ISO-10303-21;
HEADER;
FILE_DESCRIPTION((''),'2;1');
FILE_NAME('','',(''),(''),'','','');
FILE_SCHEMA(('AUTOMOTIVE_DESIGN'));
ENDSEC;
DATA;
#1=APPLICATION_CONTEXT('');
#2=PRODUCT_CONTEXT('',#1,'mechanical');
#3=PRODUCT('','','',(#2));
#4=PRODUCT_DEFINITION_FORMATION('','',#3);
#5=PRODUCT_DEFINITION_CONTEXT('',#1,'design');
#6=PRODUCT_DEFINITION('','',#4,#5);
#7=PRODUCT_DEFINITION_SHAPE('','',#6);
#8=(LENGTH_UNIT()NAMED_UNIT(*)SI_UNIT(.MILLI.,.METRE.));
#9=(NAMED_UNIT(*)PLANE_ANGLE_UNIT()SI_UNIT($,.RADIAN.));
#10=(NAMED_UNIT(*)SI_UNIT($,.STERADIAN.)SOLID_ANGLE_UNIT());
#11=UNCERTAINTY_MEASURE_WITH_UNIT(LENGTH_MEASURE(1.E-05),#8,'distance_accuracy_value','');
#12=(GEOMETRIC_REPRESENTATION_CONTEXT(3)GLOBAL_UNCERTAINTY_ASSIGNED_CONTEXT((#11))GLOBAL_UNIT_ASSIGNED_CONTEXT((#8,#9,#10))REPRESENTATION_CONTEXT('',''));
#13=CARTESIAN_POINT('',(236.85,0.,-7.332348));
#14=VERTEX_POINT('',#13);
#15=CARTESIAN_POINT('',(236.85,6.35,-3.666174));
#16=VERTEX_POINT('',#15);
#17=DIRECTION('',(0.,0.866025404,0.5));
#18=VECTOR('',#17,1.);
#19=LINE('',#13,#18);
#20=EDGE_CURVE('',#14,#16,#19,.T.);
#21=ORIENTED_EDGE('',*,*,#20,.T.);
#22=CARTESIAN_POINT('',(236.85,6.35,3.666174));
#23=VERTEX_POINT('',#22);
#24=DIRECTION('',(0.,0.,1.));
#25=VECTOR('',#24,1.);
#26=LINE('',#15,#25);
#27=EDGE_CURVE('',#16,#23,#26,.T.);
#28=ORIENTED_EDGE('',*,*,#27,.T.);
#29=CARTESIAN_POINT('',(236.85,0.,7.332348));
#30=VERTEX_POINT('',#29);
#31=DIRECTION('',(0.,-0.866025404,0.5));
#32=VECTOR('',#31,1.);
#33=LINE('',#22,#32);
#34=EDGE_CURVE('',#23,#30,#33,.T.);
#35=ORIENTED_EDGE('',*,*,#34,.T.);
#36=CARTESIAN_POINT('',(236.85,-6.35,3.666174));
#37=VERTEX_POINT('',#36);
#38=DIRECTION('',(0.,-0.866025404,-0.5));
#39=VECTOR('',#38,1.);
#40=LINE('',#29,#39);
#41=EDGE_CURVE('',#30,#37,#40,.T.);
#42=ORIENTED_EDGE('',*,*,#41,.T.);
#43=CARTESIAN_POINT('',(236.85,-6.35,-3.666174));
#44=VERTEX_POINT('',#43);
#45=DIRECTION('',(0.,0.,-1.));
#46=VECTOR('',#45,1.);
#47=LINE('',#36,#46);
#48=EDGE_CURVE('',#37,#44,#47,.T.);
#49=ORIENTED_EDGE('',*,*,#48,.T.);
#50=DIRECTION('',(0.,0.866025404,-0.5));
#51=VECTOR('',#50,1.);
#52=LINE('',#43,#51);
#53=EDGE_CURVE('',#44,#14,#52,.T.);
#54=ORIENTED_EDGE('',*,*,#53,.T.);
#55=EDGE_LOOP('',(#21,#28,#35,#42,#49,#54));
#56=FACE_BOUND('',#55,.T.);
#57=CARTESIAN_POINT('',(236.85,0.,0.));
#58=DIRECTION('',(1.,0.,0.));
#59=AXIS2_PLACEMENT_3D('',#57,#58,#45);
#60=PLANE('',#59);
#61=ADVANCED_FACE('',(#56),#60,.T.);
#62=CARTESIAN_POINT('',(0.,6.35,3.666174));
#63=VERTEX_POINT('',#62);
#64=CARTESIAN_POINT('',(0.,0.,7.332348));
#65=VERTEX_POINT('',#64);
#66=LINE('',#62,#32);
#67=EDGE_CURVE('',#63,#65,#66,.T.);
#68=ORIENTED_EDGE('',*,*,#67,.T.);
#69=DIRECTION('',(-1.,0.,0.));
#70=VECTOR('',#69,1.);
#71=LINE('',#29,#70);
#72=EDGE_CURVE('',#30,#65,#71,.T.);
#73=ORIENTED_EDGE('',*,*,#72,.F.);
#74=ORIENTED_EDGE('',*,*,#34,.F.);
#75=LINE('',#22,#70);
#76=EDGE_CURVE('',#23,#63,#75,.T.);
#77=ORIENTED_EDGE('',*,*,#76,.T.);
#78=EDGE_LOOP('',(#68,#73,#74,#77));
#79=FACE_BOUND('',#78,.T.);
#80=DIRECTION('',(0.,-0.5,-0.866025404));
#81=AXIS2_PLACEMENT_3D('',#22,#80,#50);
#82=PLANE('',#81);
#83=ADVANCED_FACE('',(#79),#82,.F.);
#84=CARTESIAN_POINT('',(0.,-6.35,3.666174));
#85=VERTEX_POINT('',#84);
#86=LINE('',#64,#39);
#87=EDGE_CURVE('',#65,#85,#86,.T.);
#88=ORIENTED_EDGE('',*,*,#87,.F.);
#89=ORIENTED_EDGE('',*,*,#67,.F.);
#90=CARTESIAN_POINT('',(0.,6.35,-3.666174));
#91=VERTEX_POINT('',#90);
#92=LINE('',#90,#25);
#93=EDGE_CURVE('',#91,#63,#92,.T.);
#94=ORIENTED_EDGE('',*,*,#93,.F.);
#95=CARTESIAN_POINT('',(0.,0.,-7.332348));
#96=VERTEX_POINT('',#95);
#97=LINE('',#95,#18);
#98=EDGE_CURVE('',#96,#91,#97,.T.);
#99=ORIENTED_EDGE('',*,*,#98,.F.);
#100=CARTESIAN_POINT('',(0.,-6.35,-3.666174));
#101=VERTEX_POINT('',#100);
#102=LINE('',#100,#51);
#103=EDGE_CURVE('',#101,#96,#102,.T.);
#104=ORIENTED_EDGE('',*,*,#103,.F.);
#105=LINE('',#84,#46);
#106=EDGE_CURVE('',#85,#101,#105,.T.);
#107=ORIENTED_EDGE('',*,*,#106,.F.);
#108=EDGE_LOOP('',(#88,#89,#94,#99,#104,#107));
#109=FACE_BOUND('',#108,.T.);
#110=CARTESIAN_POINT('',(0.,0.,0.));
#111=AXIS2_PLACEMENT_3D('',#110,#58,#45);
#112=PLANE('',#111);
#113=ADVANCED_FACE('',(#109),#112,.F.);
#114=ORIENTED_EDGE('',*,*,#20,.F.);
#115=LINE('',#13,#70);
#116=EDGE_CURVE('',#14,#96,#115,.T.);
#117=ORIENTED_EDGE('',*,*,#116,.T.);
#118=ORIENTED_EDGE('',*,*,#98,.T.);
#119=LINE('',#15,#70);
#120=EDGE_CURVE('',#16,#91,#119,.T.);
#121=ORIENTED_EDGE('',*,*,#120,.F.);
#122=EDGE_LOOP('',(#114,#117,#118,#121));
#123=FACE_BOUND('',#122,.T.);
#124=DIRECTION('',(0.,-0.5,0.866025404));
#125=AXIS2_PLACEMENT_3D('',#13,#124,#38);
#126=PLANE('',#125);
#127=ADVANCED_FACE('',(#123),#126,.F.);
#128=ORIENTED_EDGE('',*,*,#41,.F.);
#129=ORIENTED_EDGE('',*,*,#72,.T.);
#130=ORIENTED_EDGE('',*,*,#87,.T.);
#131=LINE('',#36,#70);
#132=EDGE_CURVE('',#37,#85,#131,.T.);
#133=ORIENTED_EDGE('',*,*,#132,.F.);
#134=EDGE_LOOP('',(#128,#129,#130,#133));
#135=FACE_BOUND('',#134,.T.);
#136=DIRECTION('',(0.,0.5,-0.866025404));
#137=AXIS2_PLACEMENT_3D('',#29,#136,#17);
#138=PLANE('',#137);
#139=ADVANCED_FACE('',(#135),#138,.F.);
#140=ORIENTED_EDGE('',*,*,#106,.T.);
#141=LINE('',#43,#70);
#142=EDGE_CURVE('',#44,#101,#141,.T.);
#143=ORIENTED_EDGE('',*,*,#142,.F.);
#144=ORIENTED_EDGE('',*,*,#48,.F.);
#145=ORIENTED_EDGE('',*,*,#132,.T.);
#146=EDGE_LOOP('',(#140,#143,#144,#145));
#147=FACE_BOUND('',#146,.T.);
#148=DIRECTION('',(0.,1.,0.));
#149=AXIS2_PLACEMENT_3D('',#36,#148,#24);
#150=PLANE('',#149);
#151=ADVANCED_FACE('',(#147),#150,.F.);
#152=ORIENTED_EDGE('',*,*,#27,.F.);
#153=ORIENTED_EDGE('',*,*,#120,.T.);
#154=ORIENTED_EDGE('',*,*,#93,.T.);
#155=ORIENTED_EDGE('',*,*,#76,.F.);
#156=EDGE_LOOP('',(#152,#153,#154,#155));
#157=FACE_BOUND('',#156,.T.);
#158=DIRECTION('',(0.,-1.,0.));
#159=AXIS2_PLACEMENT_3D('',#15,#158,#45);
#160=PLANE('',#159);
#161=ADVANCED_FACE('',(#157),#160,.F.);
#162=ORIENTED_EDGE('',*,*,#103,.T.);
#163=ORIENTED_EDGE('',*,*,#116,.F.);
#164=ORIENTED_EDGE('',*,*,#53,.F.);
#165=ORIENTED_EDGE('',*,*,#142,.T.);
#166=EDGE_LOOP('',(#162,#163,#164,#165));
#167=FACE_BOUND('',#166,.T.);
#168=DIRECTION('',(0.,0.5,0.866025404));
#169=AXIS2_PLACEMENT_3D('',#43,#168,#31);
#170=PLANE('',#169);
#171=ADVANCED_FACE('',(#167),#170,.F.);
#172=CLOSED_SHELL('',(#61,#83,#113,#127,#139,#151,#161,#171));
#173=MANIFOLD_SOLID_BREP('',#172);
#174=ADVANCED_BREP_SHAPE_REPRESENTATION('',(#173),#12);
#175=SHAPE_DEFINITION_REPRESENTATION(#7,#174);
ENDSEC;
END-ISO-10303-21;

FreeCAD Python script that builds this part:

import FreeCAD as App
import Part
import Sketcher
from FreeCAD import Vector
Q = App.Units.Quantity


def add_polygon(sketch, points):
    """Adds a closed chain of lines whose ends are joined by coincident constraints."""
    first, n = sketch.GeometryCount, len(points)
    for a, b in zip(points, points[1:] + points[:1]):
        sketch.addGeometry(Part.LineSegment(App.Vector(*a, 0), App.Vector(*b, 0)), False)
    for i in range(n):
        sketch.addConstraint(Sketcher.Constraint("Coincident", first + i, 2, first + (i + 1) % n, 1))

doc = App.newDocument("Part")
body = doc.addObject("PartDesign::Body", "Body")

sketch1 = body.newObject("Sketcher::SketchObject", "Sketch")
sketch1.AttachmentSupport = (doc.getObject("YZ_Plane"), [""])
sketch1.MapMode = "FlatFace"
add_polygon(sketch1, [(0, -7), (6, -4), (6, 4), (0, 7), (-6, 4), (-6, -4)])
sketch1.addConstraint([
    Sketcher.Constraint("Vertical", 1),
    Sketcher.Constraint("Vertical", 4),
    Sketcher.Constraint("Symmetric", 0, 2, 3, 2, -1, 1),
    Sketcher.Constraint("Symmetric", 2, 2, 5, 2, -1, 1),
    Sketcher.Constraint("PointOnObject", 2, 2, -2),
    Sketcher.Constraint("Parallel", 2, 5),
    Sketcher.Constraint("Horizontal", 1, 2, 3, 2),
    Sketcher.Constraint("Angle", 0, Q("30 deg")),
    Sketcher.Constraint("DistanceX", 3, 2, 1, 2, Q("12.7 mm")),
    Sketcher.Constraint("DistanceY", 1, 1, 1, 2, Q("7.332348 mm")),
])
pad1 = body.newObject("PartDesign::Pad", "Pad")
pad1.Profile = sketch1
pad1.Length = 236.85

doc.recompute()
